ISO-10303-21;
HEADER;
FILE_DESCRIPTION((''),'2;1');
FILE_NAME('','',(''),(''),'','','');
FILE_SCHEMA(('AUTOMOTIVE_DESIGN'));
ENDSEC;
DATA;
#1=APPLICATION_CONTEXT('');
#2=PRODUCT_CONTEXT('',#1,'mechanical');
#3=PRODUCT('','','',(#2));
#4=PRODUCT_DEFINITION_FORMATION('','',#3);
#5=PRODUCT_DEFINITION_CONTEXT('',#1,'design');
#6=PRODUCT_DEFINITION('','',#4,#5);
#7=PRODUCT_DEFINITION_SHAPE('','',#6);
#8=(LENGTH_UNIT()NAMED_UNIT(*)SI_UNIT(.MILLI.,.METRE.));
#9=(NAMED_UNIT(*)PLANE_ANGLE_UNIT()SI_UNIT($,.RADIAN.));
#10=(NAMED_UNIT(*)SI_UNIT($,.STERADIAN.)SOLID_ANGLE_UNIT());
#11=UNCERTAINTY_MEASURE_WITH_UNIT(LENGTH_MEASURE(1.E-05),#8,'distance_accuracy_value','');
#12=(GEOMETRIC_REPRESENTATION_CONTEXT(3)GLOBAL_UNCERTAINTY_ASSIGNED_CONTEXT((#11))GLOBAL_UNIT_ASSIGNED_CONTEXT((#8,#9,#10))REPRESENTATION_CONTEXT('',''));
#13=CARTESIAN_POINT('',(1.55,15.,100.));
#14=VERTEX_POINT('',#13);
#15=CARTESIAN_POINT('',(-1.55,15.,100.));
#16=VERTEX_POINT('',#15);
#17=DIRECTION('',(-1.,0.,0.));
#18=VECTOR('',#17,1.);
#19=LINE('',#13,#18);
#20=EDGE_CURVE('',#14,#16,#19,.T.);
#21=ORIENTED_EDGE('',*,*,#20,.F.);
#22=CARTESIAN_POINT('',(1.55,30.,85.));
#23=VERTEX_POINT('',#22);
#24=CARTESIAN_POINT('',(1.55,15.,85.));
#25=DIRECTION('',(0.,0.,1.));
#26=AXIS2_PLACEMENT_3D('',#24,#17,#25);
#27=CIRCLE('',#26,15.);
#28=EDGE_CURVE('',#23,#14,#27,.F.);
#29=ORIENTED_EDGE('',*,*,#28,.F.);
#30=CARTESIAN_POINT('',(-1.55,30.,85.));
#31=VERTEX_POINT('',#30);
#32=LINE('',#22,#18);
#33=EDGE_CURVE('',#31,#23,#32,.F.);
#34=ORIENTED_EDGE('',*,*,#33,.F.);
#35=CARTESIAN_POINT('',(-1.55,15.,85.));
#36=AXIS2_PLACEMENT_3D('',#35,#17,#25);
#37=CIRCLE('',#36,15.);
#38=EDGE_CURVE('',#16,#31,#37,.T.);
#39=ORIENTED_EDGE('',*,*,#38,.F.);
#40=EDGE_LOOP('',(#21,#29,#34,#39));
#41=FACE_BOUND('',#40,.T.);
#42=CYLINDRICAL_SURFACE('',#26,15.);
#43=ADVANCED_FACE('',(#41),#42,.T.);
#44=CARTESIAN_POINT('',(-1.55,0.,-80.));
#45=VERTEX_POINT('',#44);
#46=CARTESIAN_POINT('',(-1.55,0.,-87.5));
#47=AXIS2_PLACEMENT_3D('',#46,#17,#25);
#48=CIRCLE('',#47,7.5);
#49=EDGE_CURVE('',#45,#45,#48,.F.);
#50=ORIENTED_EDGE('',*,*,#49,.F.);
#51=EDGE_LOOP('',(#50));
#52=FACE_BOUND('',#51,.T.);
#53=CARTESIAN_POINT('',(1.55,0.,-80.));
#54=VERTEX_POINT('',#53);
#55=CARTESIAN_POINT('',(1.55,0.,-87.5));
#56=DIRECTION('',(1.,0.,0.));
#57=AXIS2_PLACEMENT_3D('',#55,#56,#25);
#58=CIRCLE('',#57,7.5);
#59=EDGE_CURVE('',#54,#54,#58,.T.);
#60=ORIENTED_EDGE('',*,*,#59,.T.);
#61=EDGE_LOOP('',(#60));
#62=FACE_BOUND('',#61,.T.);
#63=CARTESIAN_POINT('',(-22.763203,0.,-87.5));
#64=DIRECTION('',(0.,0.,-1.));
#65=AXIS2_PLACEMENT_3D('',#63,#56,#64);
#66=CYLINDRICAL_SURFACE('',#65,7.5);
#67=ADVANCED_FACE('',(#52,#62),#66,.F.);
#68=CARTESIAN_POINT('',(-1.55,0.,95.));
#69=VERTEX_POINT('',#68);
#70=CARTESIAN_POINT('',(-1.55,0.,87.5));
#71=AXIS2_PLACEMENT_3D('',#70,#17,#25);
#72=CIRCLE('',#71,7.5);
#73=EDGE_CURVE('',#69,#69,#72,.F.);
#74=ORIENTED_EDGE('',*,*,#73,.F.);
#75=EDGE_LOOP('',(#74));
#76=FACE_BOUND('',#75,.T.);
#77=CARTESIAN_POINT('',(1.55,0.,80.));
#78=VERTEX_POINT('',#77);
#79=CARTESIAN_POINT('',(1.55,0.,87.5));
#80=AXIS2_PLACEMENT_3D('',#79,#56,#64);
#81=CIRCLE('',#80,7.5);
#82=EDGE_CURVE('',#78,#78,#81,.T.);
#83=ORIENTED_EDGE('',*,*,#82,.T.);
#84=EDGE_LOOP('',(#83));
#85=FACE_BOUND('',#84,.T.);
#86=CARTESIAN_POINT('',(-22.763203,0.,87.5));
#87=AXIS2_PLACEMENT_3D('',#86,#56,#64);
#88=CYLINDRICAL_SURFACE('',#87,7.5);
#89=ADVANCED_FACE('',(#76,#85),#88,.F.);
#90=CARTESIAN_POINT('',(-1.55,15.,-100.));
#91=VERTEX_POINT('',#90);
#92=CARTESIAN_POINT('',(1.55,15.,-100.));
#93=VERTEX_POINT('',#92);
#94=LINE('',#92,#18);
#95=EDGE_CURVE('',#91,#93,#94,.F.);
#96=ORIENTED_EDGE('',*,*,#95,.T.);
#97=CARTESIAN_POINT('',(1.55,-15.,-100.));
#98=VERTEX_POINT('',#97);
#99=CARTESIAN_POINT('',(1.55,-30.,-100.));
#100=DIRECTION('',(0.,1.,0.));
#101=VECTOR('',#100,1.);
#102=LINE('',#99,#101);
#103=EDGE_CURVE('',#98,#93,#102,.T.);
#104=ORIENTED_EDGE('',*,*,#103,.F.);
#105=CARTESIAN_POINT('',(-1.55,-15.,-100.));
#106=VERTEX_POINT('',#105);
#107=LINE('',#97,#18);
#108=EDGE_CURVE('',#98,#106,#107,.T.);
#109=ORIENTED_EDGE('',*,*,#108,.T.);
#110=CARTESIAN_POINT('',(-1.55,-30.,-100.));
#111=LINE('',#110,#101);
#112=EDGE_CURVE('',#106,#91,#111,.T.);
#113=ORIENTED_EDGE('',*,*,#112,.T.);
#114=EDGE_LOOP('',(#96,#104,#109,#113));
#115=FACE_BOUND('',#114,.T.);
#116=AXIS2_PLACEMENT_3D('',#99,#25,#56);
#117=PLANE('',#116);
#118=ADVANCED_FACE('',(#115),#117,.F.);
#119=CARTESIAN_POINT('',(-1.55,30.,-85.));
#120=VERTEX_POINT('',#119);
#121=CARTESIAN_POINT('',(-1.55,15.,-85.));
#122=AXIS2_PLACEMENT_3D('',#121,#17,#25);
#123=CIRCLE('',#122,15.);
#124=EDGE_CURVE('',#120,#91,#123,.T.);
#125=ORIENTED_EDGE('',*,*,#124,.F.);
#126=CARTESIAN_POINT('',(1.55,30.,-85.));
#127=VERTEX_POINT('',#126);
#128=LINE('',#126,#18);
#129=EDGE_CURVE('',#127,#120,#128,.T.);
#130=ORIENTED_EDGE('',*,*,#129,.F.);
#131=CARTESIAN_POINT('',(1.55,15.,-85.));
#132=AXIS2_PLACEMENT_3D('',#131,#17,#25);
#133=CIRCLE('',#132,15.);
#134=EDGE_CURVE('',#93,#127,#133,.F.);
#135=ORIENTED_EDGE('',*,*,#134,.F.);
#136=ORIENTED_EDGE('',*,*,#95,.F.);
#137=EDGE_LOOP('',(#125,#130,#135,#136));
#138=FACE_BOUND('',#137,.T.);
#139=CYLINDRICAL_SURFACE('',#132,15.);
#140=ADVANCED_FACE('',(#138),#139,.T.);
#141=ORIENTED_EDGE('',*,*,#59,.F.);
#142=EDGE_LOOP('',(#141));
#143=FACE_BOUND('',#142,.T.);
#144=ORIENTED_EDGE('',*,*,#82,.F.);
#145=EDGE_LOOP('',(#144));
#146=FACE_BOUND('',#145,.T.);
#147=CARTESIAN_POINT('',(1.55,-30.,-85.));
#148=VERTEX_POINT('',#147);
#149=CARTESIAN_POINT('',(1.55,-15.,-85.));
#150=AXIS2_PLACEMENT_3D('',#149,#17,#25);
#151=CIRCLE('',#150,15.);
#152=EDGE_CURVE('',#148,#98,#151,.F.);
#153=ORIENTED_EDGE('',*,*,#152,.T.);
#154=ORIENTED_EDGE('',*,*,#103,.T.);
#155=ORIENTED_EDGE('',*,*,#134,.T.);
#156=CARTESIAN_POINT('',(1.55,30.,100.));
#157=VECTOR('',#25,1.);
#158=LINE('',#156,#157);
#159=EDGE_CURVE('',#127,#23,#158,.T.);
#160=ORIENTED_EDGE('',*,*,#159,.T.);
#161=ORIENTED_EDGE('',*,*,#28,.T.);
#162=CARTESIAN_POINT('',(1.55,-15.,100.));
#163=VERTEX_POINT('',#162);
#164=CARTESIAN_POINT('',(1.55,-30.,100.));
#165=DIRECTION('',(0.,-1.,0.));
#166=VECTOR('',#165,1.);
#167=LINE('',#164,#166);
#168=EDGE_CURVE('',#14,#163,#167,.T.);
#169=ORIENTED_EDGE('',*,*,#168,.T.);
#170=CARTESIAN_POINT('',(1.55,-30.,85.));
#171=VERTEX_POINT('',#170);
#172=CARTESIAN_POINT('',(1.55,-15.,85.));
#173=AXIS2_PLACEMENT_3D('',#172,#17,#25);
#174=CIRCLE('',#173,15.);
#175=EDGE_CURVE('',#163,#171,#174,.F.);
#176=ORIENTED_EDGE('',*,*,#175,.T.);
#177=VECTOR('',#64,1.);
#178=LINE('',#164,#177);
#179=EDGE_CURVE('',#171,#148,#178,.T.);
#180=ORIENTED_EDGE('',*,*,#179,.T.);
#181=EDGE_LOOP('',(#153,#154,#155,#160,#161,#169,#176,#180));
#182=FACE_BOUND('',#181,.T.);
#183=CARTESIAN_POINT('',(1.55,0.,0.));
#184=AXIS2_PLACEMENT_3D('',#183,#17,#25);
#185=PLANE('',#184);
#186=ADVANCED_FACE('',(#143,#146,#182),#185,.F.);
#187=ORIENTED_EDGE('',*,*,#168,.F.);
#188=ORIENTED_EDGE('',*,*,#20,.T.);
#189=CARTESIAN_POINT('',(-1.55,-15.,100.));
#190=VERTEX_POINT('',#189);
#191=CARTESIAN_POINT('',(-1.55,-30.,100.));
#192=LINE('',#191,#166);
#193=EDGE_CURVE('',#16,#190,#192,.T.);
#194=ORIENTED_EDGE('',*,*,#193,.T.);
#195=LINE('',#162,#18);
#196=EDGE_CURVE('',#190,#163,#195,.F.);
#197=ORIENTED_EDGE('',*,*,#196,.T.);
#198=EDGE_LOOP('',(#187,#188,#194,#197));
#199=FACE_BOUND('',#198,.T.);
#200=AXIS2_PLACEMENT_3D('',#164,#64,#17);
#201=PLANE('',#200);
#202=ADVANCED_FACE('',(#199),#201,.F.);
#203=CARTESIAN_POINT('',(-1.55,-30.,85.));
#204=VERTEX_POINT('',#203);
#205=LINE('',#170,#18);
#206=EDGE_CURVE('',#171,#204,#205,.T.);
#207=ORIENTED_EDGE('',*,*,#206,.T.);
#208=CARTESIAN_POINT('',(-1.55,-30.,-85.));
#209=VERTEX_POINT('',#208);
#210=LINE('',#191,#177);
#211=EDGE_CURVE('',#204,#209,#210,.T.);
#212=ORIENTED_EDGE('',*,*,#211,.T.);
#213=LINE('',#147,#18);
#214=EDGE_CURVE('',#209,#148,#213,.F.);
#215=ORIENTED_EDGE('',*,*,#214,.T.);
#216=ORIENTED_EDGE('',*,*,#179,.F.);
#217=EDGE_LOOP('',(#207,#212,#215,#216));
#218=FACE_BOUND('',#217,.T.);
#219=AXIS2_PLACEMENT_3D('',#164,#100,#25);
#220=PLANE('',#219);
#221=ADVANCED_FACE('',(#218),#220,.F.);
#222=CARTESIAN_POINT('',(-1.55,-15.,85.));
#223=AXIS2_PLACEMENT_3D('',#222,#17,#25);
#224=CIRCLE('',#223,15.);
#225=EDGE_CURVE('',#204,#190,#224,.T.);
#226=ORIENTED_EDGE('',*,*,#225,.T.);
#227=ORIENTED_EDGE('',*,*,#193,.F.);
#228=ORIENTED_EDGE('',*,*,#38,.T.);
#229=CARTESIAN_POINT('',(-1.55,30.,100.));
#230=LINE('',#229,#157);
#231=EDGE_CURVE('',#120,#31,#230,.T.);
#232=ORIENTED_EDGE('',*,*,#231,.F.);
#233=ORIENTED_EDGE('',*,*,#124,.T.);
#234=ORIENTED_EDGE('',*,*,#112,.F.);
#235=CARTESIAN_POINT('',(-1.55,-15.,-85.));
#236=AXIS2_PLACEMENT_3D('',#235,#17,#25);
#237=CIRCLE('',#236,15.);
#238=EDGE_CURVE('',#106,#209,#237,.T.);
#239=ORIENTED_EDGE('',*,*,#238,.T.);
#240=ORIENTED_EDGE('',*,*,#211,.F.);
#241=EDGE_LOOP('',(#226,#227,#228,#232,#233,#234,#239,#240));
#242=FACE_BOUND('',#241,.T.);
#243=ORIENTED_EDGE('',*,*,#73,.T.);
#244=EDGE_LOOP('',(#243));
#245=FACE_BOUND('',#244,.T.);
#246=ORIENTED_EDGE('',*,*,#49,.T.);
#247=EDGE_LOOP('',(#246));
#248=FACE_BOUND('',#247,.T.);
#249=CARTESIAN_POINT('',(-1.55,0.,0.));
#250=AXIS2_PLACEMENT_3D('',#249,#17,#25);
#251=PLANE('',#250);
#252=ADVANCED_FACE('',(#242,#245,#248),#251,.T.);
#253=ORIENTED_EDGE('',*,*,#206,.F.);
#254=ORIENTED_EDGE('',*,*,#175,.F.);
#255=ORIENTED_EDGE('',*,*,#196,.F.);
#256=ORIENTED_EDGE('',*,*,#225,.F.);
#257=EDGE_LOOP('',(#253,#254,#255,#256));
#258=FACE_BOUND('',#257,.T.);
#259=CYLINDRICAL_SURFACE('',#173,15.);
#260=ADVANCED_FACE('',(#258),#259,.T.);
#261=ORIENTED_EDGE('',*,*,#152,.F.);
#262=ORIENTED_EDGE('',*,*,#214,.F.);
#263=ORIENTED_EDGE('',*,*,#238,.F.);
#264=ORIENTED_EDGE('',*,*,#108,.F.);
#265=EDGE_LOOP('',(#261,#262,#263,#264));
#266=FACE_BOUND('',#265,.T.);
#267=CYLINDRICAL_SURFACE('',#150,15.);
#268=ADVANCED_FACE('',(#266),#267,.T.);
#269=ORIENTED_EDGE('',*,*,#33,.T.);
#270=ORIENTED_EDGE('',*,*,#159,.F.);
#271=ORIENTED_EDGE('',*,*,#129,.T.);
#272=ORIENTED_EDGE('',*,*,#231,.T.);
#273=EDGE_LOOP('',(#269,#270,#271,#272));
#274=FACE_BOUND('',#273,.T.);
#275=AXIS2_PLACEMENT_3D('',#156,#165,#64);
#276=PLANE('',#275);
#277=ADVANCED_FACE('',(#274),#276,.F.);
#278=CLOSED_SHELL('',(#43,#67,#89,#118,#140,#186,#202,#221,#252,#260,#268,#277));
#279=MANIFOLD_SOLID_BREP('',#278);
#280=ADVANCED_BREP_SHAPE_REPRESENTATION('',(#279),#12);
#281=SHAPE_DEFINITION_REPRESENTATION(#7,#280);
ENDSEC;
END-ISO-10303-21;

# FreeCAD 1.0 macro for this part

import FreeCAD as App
import Part
import Sketcher

V = App.Vector


def edges_at(feature, points):
    """Names of the edges that pass closest to the given points."""
    edges = feature.Shape.Edges
    near = lambda p: min(range(len(edges)), key=lambda i: edges[i].distToShape(Part.Vertex(*p))[0])
    return sorted({f"Edge{near(p) + 1}" for p in points})

doc = App.newDocument("Part")
body = doc.addObject("PartDesign::Body", "Body")

# Sketch on YZ plane
sketch1 = body.newObject("Sketcher::SketchObject", "Sketch")
sketch1.AttachmentSupport = (doc.getObject("YZ_Plane"), [""])
sketch1.MapMode = "FlatFace"
sketch1.addGeometry([
    Part.LineSegment(V(30, 100, 0), V(-30, 100, 0)),
    Part.LineSegment(V(-30, 100, 0), V(-30, -100, 0)),
    Part.LineSegment(V(-30, -100, 0), V(30, -100, 0)),
    Part.LineSegment(V(30, -100, 0), V(30, 100, 0)),
], False)
sketch1.addConstraint([
    Sketcher.Constraint("Coincident", 0, 2, 1, 1),
    Sketcher.Constraint("Coincident", 1, 2, 2, 1),
    Sketcher.Constraint("Coincident", 2, 2, 3, 1),
    Sketcher.Constraint("Coincident", 3, 2, 0, 1),
    Sketcher.Constraint("Horizontal", 0),
    Sketcher.Constraint("Vertical", 1),
    Sketcher.Constraint("Horizontal", 2),
    Sketcher.Constraint("Vertical", 3),
    Sketcher.Constraint("Symmetric", 0, 2, 2, 2, -1, 1),
    Sketcher.Constraint("DistanceX", 0, 2, 0, 1, 60.0),
    Sketcher.Constraint("DistanceY", 1, 2, 1, 1, 200.0),
])
pad1 = body.newObject("PartDesign::Pad", "Pad")
pad1.Profile = sketch1
pad1.Length = 3.1
pad1.Midplane = True
doc.recompute()

fillet = body.newObject("PartDesign::Fillet", "Fillet")
fillet.Base = (pad1, edges_at(pad1, [
    (0, -30, -100),
    (0, -30, 100),
    (0, 30, 100),
    (0, 30, -100),
]))
fillet.Radius = 15

# Sketch on YZ plane
sketch2 = body.newObject("Sketcher::SketchObject", "Sketch001")
sketch2.AttachmentSupport = (doc.getObject("YZ_Plane"), [""])
sketch2.MapMode = "FlatFace"
sketch2.AttachmentOffset = App.Placement(V(0, 0, 1.55), App.Rotation())
sketch2.addGeometry([
    Part.Circle(V(0, 87.5, 0), V(0, 0, 1), 7.5),
    Part.Circle(V(0, -87.5, 0), V(0, 0, 1), 7.5),
], False)
sketch2.addConstraint([
    Sketcher.Constraint("Equal", 0, 1),
    Sketcher.Constraint("Symmetric", 0, 3, 1, 3, -1, 1),
    Sketcher.Constraint("PointOnObject", 0, 3, -2),
    Sketcher.Constraint("Diameter", 0, 15.0),
    Sketcher.Constraint("DistanceY", 1, 3, 0, 3, 175.0),
])
pocket1 = body.newObject("PartDesign::Pocket", "Pocket")
pocket1.Profile = sketch2
pocket1.Length = 3.1

doc.recompute()
